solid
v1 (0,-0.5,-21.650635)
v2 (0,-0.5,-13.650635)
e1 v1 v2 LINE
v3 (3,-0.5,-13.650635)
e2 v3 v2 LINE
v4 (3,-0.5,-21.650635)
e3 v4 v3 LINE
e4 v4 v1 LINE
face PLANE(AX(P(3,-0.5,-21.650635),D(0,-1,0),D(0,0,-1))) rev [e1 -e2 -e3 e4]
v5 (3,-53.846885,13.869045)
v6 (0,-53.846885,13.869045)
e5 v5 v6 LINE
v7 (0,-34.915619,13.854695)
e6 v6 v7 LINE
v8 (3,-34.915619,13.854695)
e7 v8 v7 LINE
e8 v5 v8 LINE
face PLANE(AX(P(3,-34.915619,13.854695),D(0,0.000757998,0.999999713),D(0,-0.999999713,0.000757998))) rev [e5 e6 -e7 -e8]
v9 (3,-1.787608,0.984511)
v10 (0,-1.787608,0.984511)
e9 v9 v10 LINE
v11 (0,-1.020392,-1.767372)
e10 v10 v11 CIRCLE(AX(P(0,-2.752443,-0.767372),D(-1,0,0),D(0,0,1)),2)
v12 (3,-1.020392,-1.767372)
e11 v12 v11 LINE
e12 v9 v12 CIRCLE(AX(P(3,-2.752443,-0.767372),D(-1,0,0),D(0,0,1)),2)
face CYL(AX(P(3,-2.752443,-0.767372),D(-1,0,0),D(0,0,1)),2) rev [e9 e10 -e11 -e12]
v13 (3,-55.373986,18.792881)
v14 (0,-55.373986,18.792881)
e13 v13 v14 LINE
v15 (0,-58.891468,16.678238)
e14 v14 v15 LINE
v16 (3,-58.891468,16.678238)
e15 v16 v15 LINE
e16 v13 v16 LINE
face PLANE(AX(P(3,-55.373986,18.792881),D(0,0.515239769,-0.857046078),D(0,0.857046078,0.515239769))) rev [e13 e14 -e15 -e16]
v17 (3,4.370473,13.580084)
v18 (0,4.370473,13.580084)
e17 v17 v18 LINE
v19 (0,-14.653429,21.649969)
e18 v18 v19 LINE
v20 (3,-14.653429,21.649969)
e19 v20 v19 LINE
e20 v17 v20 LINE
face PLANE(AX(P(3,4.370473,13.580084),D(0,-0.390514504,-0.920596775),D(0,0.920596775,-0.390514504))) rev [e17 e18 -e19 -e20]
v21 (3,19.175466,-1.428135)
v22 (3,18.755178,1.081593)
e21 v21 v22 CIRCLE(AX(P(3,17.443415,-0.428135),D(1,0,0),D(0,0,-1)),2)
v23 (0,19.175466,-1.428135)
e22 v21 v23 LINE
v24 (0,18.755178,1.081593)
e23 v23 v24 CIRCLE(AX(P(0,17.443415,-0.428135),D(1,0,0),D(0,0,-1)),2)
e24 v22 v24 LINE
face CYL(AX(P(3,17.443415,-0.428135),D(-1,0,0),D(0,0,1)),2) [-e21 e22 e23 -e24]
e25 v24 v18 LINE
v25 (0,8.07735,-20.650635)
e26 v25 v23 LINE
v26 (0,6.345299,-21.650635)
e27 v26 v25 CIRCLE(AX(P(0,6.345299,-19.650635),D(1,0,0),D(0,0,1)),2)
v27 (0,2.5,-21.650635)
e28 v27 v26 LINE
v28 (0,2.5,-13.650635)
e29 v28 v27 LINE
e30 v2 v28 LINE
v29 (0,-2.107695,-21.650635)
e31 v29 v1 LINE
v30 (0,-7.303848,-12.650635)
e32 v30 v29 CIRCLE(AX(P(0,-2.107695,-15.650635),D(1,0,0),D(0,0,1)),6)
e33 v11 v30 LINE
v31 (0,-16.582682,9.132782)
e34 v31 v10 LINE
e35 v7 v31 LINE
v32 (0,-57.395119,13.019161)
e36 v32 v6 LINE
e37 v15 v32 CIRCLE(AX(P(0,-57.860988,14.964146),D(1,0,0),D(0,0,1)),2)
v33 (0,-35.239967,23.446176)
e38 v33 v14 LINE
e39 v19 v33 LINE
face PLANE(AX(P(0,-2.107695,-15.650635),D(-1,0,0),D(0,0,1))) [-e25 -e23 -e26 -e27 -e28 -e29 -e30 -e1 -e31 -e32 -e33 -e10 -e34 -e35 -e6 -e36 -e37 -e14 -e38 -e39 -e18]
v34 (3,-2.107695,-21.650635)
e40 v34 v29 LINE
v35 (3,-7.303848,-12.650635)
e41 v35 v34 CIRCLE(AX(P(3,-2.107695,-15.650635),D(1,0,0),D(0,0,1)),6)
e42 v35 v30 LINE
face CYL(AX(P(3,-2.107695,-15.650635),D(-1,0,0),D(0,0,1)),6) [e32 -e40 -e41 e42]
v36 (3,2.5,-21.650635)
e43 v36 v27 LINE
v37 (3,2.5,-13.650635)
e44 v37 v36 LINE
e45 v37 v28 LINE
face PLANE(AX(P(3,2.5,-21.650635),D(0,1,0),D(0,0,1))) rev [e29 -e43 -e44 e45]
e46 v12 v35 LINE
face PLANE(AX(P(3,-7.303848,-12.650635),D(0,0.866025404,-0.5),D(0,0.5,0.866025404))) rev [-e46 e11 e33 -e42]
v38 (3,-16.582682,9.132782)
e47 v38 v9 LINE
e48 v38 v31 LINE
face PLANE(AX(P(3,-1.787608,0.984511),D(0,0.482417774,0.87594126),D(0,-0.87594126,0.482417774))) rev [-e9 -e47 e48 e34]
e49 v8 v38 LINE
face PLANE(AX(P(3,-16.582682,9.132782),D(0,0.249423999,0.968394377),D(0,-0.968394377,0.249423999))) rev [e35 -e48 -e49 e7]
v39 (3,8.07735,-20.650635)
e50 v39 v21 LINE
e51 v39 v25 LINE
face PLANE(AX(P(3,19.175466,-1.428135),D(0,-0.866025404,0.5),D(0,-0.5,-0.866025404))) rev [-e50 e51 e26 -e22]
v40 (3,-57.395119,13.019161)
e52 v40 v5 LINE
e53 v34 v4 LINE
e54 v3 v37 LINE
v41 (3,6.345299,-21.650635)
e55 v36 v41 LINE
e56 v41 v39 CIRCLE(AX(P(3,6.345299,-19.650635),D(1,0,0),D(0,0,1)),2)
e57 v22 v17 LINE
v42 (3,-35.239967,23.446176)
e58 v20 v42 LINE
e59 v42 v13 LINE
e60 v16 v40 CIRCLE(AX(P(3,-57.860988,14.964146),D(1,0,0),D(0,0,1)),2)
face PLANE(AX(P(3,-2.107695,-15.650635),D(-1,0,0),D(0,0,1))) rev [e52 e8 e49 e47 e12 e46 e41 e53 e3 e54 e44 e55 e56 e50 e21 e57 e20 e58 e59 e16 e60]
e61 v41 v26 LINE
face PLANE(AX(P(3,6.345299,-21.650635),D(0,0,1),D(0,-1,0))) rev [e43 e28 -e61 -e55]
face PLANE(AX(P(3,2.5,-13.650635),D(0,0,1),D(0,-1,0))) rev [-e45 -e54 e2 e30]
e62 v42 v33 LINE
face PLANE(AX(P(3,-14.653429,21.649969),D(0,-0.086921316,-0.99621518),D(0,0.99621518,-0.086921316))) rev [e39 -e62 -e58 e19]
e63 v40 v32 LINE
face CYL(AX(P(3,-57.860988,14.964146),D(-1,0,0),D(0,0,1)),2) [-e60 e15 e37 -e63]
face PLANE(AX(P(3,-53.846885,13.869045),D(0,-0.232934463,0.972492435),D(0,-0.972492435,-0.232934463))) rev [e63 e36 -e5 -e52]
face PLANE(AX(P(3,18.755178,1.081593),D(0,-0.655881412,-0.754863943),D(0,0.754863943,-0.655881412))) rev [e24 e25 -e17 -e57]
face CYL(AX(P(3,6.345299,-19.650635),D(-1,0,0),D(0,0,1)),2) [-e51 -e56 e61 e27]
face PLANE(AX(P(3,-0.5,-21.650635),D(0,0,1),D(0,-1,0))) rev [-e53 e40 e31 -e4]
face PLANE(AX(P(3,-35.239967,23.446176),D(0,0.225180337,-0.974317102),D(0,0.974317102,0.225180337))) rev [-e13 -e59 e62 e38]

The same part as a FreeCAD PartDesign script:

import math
import FreeCAD as App
import Part
import Sketcher

V = App.Vector
Q = App.Units.Quantity

doc = App.newDocument("Part")
body = doc.addObject("PartDesign::Body", "Body")

# Sketch on YZ plane
sketch1 = body.newObject("Sketcher::SketchObject", "Sketch")
sketch1.AttachmentSupport = (doc.getObject("YZ_Plane"), [""])
sketch1.MapMode = "FlatFace"
sketch1.addGeometry([
    Part.LineSegment(V(-57.4, 13, 0), V(-53.8, 13.9, 0)),  # 0
    Part.LineSegment(V(-53.8, 13.9, 0), V(-34.9, 13.9, 0)),  # 1
    Part.LineSegment(V(-34.9, 13.9, 0), V(-16.6, 9.1, 0)),  # 2
    Part.LineSegment(V(-16.6, 9.1, 0), V(-1.8, 1, 0)),  # 3
    Part.ArcOfCircle(Part.Circle(V(-2.8, -0.8, 0), V(0, 0, 1), 2), math.radians(-30), math.radians(61)),  # 4
    Part.LineSegment(V(-1, -1.8, 0), V(-7.3, -12.7, 0)),  # 5
    Part.ArcOfCircle(Part.Circle(V(-2.1, -15.7, 0), V(0, 0, 1), 6), math.radians(150), math.radians(270)),  # 6
    Part.LineSegment(V(-2.1, -21.7, 0), V(-0.5, -21.7, 0)),  # 7
    Part.LineSegment(V(-0.5, -21.7, 0), V(-0.5, -13.7, 0)),  # 8
    Part.LineSegment(V(-0.5, -13.7, 0), V(2.5, -13.7, 0)),  # 9
    Part.LineSegment(V(2.5, -13.7, 0), V(2.5, -21.7, 0)),  # 10
    Part.LineSegment(V(2.5, -21.7, 0), V(6.3, -21.7, 0)),  # 11
    Part.ArcOfCircle(Part.Circle(V(6.3, -19.7, 0), V(0, 0, 1), 2), math.radians(-90), math.radians(-30)),  # 12
    Part.LineSegment(V(8.1, -20.7, 0), V(19.2, -1.4, 0)),  # 13
    Part.ArcOfCircle(Part.Circle(V(17.4, -0.4, 0), V(0, 0, 1), 2), math.radians(-30), math.radians(49)),  # 14
    Part.LineSegment(V(18.8, 1.1, 0), V(4.4, 13.6, 0)),  # 15
    Part.LineSegment(V(4.4, 13.6, 0), V(-14.7, 21.6, 0)),  # 16
    Part.LineSegment(V(-14.7, 21.6, 0), V(-35.2, 23.4, 0)),  # 17
    Part.LineSegment(V(-35.2, 23.4, 0), V(-55.4, 18.8, 0)),  # 18
    Part.LineSegment(V(-55.4, 18.8, 0), V(-58.9, 16.7, 0)),  # 19
    Part.ArcOfCircle(Part.Circle(V(-57.9, 15, 0), V(0, 0, 1), 2), math.radians(121), math.radians(283)),  # 20
], False)
sketch1.addConstraint([
    Sketcher.Constraint("Coincident", 0, 2, 1, 1),
    Sketcher.Constraint("Coincident", 1, 2, 2, 1),
    Sketcher.Constraint("Coincident", 2, 2, 3, 1),
    Sketcher.Constraint("Tangent", 3, 2, 4, 2),
    Sketcher.Constraint("Tangent", 4, 1, 5, 1),
    Sketcher.Constraint("Tangent", 5, 2, 6, 1),
    Sketcher.Constraint("Tangent", 6, 2, 7, 1),
    Sketcher.Constraint("Coincident", 7, 2, 8, 1),
    Sketcher.Constraint("Coincident", 8, 2, 9, 1),
    Sketcher.Constraint("Coincident", 9, 2, 10, 1),
    Sketcher.Constraint("Coincident", 10, 2, 11, 1),
    Sketcher.Constraint("Tangent", 11, 2, 12, 1),
    Sketcher.Constraint("Tangent", 12, 2, 13, 1),
    Sketcher.Constraint("Tangent", 13, 2, 14, 1),
    Sketcher.Constraint("Tangent", 14, 2, 15, 1),
    Sketcher.Constraint("Coincident", 15, 2, 16, 1),
    Sketcher.Constraint("Coincident", 16, 2, 17, 1),
    Sketcher.Constraint("Coincident", 17, 2, 18, 1),
    Sketcher.Constraint("Coincident", 18, 2, 19, 1),
    Sketcher.Constraint("Tangent", 19, 2, 20, 1),
    Sketcher.Constraint("Tangent", 20, 2, 0, 1),
    Sketcher.Constraint("Horizontal", 7),
    Sketcher.Constraint("Vertical", 8),
    Sketcher.Constraint("Horizontal", 9),
    Sketcher.Constraint("Vertical", 10),
    Sketcher.Constraint("Horizontal", 11),
    Sketcher.Constraint("Equal", 4, 12),
    Sketcher.Constraint("Equal", 12, 14),
    Sketcher.Constraint("Equal", 14, 20),
    Sketcher.Constraint("Parallel", 5, 13),
    Sketcher.Constraint("Horizontal", 7, 2, 10, 2),
    Sketcher.Constraint("Equal", 1, 2),
    Sketcher.Constraint("Equal", 16, 17),
    Sketcher.Constraint("Equal", 17, 18),
    Sketcher.Constraint("Radius", 4, 2.0),
    Sketcher.Constraint("Radius", 6, 6.0),
    Sketcher.Constraint("DistanceX", 9, 1, 9, 2, 3.0),
    Sketcher.Constraint("DistanceY", 8, 1, 8, 2, 8.0),
    Sketcher.Constraint("Angle", 5, Q("-120 deg")),
    Sketcher.Constraint("DistanceX", 7, 2, -1, 1, 0.5),
    Sketcher.Constraint("DistanceX", 11, 1, 11, 2, 3.845299),
    Sketcher.Constraint("Distance", 0, 3.648598),
    Sketcher.Constraint("DistanceY", 12, 3, 14, 3, 19.2225),
    Sketcher.Constraint("DistanceY", 0, 2, 20, 3, 1.095101),
    Sketcher.Constraint("DistanceX", 0, 2, 14, 3, 71.2903),
    Sketcher.Constraint("DistanceX", 18, 2, 0, 2, 1.527101),
    Sketcher.Constraint("DistanceY", 2, 2, 18, 2, 9.660099),
    Sketcher.Constraint("DistanceX", 19, 2, 17, 2, 23.651501),
    Sketcher.Constraint("DistanceX", 20, 2, 1, 2, 22.4795),
    Sketcher.Constraint("Distance", 5, 12.56691),
    Sketcher.Constraint("Distance", 16, 20.66475),
    Sketcher.Constraint("Distance", 19, 4.104192),
    Sketcher.Constraint("DistanceX", 7, 1, 7, 2, 1.607695),
    Sketcher.Constraint("DistanceY", 4, 3, -1, 1, 0.767372),
    Sketcher.Constraint("DistanceX", 2, 2, -1, 1, 16.582682),
    Sketcher.Constraint("DistanceY", -1, 1, 2, 2, 9.132782),
    Sketcher.Constraint("DistanceX", 16, 2, -1, 1, 14.653429),
    Sketcher.Constraint("DistanceX", 4, 1, 14, 2, 19.77557),
])
pad1 = body.newObject("PartDesign::Pad", "Pad")
pad1.Profile = sketch1
pad1.Length = 3

doc.recompute()
